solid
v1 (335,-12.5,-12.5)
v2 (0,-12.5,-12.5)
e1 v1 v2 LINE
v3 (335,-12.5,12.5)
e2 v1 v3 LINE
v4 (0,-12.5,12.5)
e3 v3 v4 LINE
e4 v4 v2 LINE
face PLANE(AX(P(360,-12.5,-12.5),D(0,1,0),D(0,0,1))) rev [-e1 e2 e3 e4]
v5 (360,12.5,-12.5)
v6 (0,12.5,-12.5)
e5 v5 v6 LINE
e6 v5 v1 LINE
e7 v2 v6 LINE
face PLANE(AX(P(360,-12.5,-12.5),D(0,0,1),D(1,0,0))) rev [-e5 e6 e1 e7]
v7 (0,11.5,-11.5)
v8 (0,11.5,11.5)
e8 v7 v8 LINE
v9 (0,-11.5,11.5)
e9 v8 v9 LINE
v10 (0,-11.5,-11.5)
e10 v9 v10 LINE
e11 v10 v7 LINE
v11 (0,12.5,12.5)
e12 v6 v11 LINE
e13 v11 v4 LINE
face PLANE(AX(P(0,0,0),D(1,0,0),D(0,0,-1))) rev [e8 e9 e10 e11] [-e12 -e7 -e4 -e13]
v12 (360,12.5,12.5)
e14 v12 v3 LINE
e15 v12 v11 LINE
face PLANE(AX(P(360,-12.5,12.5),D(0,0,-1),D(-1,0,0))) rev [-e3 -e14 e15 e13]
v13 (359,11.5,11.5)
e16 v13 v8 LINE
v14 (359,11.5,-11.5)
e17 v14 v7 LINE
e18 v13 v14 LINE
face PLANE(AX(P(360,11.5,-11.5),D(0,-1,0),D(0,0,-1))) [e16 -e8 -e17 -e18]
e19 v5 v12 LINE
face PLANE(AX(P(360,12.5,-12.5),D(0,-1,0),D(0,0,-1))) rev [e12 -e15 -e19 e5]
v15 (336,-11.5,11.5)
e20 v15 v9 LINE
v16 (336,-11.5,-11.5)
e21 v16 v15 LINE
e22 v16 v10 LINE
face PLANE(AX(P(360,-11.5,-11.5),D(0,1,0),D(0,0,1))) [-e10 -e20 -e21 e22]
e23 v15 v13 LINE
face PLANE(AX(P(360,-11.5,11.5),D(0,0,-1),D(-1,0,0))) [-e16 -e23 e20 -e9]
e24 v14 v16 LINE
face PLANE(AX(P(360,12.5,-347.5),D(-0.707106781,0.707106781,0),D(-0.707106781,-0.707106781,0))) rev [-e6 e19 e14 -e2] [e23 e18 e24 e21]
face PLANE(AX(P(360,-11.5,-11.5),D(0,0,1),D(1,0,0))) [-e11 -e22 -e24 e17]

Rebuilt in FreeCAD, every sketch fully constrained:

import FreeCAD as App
import Part
import Sketcher
from FreeCAD import Vector
Q = App.Units.Quantity


def add_polygon(sketch, points):
    """Adds a closed chain of lines whose ends are joined by coincident constraints."""
    first, n = sketch.GeometryCount, len(points)
    for a, b in zip(points, points[1:] + points[:1]):
        sketch.addGeometry(Part.LineSegment(App.Vector(*a, 0), App.Vector(*b, 0)), False)
    for i in range(n):
        sketch.addConstraint(Sketcher.Constraint("Coincident", first + i, 2, first + (i + 1) % n, 1))

doc = App.newDocument("Part")
body = doc.addObject("PartDesign::Body", "Body")

# Sketch on YZ plane
sketch1 = body.newObject("Sketcher::SketchObject", "Sketch")
sketch1.AttachmentSupport = (doc.getObject("YZ_Plane"), [""])
sketch1.MapMode = "FlatFace"
add_polygon(sketch1, [(12, 12), (-12, 12), (-12, -12), (12, -12)])  # lines 0-3
add_polygon(sketch1, [(-12, -12), (-12, 12), (12, 12), (12, -12)])  # lines 4-7
sketch1.addConstraint(Sketcher.Constraint("Horizontal", 0))
sketch1.addConstraint(Sketcher.Constraint("Vertical", 1))
sketch1.addConstraint(Sketcher.Constraint("Horizontal", 2))
sketch1.addConstraint(Sketcher.Constraint("Vertical", 3))
sketch1.addConstraint(Sketcher.Constraint("Vertical", 4))
sketch1.addConstraint(Sketcher.Constraint("Horizontal", 5))
sketch1.addConstraint(Sketcher.Constraint("Vertical", 6))
sketch1.addConstraint(Sketcher.Constraint("Horizontal", 7))
sketch1.addConstraint(Sketcher.Constraint("Symmetric", 0, 2, 2, 2, -1, 1))
sketch1.addConstraint(Sketcher.Constraint("Symmetric", 4, 2, 6, 2, -1, 1))
sketch1.addConstraint(Sketcher.Constraint("Equal", 2, 1))
sketch1.addConstraint(Sketcher.Constraint("Equal", 7, 4))
sketch1.addConstraint(Sketcher.Constraint("DistanceX", 0, 2, 0, 1, Q("25 mm")))
sketch1.addConstraint(Sketcher.Constraint("DistanceX", 5, 1, 5, 2, Q("23 mm")))
pad1 = body.newObject("PartDesign::Pad", "Pad")
pad1.Profile = sketch1
pad1.Length = 360

# Sketch on XY plane
sketch2 = body.newObject("Sketcher::SketchObject", "Sketch001")
sketch2.AttachmentSupport = (doc.getObject("XY_Plane"), [""])
sketch2.MapMode = "FlatFace"
sketch2.AttachmentOffset = App.Placement(Vector(0, 0, 12.5), App.Rotation())
add_polygon(sketch2, [(360, 12), (335, -12), (360, -12)])  # lines 0-2
sketch2.addConstraint(Sketcher.Constraint("Horizontal", 1))
sketch2.addConstraint(Sketcher.Constraint("Vertical", 2))
sketch2.addConstraint(Sketcher.Constraint("Equal", 1, 2))
sketch2.addConstraint(Sketcher.Constraint("DistanceX", 1, 1, 1, 2, Q("25 mm")))
sketch2.addConstraint(Sketcher.Constraint("DistanceX", -1, 1, 0, 2, Q("335 mm")))
sketch2.addConstraint(Sketcher.Constraint("DistanceY", 0, 2, -1, 1, Q("12.5 mm")))
pocket1 = body.newObject("PartDesign::Pocket", "Pocket")
pocket1.Profile = sketch2
pocket1.Length = 360

doc.recompute()
